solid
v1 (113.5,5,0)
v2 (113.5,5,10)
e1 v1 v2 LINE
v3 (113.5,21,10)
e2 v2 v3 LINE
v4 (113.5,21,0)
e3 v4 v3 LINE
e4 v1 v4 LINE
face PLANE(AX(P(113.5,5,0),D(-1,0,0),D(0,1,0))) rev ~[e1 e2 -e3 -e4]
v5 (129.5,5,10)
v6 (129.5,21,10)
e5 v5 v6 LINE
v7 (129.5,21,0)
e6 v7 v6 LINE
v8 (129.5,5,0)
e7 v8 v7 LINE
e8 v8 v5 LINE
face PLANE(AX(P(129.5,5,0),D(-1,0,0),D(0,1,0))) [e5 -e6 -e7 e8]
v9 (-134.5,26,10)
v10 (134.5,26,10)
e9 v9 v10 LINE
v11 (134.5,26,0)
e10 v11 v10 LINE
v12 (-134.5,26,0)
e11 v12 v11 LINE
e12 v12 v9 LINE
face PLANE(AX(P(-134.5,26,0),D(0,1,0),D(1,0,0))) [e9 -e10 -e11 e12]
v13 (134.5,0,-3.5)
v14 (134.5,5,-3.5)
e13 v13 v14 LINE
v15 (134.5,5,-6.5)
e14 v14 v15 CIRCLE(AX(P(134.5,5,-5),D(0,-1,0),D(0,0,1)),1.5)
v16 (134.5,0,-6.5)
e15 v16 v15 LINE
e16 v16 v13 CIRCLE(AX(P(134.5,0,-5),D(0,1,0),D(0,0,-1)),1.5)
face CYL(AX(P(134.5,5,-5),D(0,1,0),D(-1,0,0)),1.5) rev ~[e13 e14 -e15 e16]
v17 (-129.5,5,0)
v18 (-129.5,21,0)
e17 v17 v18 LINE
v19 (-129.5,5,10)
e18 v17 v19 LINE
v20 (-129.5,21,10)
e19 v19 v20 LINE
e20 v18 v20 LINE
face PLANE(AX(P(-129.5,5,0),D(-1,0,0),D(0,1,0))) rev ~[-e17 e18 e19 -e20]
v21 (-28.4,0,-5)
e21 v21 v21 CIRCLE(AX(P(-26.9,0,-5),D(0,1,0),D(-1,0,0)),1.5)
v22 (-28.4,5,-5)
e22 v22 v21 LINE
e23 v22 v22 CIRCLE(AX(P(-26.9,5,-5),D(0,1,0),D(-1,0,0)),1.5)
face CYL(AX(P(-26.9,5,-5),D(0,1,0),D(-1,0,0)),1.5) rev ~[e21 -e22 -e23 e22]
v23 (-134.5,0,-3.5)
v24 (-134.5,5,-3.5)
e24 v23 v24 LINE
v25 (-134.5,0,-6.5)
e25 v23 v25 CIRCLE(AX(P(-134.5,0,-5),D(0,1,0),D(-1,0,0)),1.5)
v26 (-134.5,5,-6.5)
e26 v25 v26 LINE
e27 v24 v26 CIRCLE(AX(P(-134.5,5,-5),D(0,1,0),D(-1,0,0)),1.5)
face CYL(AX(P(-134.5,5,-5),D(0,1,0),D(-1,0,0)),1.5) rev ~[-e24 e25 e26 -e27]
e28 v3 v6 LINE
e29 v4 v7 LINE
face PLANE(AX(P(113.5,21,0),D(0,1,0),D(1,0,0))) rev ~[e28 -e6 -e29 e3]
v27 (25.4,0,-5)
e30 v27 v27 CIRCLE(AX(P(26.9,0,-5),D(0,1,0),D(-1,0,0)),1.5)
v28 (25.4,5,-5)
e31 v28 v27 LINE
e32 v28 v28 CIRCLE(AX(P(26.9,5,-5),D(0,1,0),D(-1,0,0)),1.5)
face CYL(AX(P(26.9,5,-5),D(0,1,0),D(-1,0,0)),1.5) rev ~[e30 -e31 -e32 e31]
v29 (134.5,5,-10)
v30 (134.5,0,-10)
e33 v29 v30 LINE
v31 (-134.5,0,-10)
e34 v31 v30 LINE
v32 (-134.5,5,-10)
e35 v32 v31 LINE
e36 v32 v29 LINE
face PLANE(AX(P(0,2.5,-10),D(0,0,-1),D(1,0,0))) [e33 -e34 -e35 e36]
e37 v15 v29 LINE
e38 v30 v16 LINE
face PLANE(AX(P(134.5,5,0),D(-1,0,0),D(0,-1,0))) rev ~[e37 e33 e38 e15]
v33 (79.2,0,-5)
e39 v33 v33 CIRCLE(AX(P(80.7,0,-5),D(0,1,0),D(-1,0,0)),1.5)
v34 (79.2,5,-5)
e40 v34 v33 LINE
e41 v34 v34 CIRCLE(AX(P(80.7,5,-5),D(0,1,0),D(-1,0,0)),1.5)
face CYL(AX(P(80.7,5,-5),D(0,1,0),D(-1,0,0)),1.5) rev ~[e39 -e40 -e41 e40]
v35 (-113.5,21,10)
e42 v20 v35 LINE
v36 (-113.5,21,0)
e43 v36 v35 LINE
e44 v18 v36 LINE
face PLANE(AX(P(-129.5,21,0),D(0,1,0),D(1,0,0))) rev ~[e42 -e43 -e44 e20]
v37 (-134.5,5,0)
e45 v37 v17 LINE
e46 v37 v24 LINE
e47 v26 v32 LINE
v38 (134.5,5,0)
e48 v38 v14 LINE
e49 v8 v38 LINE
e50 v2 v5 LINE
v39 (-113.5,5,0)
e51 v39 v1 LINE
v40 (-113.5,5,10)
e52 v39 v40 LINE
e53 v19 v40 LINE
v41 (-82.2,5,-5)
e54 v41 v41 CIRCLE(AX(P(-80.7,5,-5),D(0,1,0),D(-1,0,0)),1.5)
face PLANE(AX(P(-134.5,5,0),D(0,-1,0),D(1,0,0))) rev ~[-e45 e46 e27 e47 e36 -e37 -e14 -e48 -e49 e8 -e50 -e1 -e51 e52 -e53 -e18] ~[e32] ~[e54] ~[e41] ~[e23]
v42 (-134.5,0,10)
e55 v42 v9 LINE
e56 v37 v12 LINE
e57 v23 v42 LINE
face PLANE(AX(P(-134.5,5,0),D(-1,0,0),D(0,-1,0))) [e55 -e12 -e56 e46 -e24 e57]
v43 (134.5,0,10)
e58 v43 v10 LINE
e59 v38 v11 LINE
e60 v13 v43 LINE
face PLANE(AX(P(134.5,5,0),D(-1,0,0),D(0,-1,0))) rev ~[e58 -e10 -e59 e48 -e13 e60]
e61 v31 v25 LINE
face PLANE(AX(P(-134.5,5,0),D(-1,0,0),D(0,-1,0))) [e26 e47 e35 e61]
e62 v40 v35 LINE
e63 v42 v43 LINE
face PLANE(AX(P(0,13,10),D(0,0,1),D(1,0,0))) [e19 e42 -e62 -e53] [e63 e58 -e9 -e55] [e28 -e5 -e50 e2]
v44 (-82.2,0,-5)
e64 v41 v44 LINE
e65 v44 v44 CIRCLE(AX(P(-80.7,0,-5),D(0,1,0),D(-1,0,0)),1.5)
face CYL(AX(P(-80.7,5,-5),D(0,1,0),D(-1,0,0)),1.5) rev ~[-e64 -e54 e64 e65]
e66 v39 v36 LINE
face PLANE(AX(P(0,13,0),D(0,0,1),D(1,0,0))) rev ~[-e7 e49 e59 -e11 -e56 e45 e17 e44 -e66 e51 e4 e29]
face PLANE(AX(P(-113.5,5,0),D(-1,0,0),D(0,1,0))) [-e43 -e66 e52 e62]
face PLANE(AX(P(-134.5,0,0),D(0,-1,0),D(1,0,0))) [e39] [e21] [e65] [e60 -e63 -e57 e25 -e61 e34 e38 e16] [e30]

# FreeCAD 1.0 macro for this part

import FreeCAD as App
import Part
import Sketcher

V = App.Vector
Q = App.Units.Quantity

doc = App.newDocument("Part")
body = doc.addObject("PartDesign::Body", "Body")

# Sketch on XY plane
sketch1 = doc.addObject("Sketcher::SketchObject", "Sketch")
body.addObject(sketch1)
sketch1.AttachmentSupport = (doc.XY_Plane, [""])
sketch1.MapMode = "FlatFace"
sketch1.addGeometry([
    Part.LineSegment(V(-134, 26, 0), V(-134, 0, 0)),  # 0
    Part.LineSegment(V(-134, 0, 0), V(134, 0, 0)),  # 1
    Part.LineSegment(V(134, 0, 0), V(134, 26, 0)),  # 2
    Part.LineSegment(V(134, 26, 0), V(-134, 26, 0)),  # 3
    Part.LineSegment(V(-114, 5, 0), V(-130, 5, 0)),  # 4
    Part.LineSegment(V(-130, 5, 0), V(-130, 21, 0)),  # 5
    Part.LineSegment(V(-130, 21, 0), V(-114, 21, 0)),  # 6
    Part.LineSegment(V(-114, 21, 0), V(-114, 5, 0)),  # 7
    Part.LineSegment(V(130, 5, 0), V(114, 5, 0)),  # 8
    Part.LineSegment(V(114, 5, 0), V(114, 21, 0)),  # 9
    Part.LineSegment(V(114, 21, 0), V(130, 21, 0)),  # 10
    Part.LineSegment(V(130, 21, 0), V(130, 5, 0)),  # 11
], False)
sketch1.addConstraint([
    Sketcher.Constraint("Coincident", 0, 2, 1, 1),
    Sketcher.Constraint("Coincident", 1, 2, 2, 1),
    Sketcher.Constraint("Coincident", 2, 2, 3, 1),
    Sketcher.Constraint("Coincident", 3, 2, 0, 1),
    Sketcher.Constraint("Coincident", 4, 2, 5, 1),
    Sketcher.Constraint("Coincident", 5, 2, 6, 1),
    Sketcher.Constraint("Coincident", 6, 2, 7, 1),
    Sketcher.Constraint("Coincident", 7, 2, 4, 1),
    Sketcher.Constraint("Coincident", 8, 2, 9, 1),
    Sketcher.Constraint("Coincident", 9, 2, 10, 1),
    Sketcher.Constraint("Coincident", 10, 2, 11, 1),
    Sketcher.Constraint("Coincident", 11, 2, 8, 1),
    Sketcher.Constraint("Vertical", 0),
    Sketcher.Constraint("Horizontal", 1),
    Sketcher.Constraint("Vertical", 2),
    Sketcher.Constraint("Horizontal", 3),
    Sketcher.Constraint("Horizontal", 4),
    Sketcher.Constraint("Vertical", 5),
    Sketcher.Constraint("Horizontal", 6),
    Sketcher.Constraint("Vertical", 7),
    Sketcher.Constraint("Horizontal", 8),
    Sketcher.Constraint("Vertical", 9),
    Sketcher.Constraint("Horizontal", 10),
    Sketcher.Constraint("Vertical", 11),
    Sketcher.Constraint("Symmetric", 0, 2, 1, 2, -1, 1),
    Sketcher.Constraint("Symmetric", 7, 2, 8, 2, -2),
    Sketcher.Constraint("Symmetric", 5, 2, 10, 2, -2),
    Sketcher.Constraint("Equal", 10, 5),
    Sketcher.Constraint("DistanceX", 1, 1, 1, 2, Q("269 mm")),
    Sketcher.Constraint("DistanceX", 4, 2, 4, 1, Q("16 mm")),
    Sketcher.Constraint("DistanceY", 0, 2, 0, 1, Q("26 mm")),
    Sketcher.Constraint("DistanceY", -1, 1, 4, 2, Q("5 mm")),
    Sketcher.Constraint("DistanceX", 0, 2, 4, 2, Q("5 mm")),
])
pad1 = doc.addObject("PartDesign::Pad", "Pad")
body.addObject(pad1)
pad1.Profile = sketch1
pad1.Length = 10

# Sketch on XY plane
sketch2 = doc.addObject("Sketcher::SketchObject", "Sketch001")
body.addObject(sketch2)
sketch2.AttachmentSupport = (doc.XY_Plane, [""])
sketch2.MapMode = "FlatFace"
sketch2.addGeometry([
    Part.LineSegment(V(-134, 0, 0), V(-134, 5, 0)),
    Part.LineSegment(V(-134, 5, 0), V(134, 5, 0)),
    Part.LineSegment(V(134, 5, 0), V(134, 0, 0)),
    Part.LineSegment(V(134, 0, 0), V(-134, 0, 0)),
], False)
sketch2.addConstraint([
    Sketcher.Constraint("Coincident", 0, 2, 1, 1),
    Sketcher.Constraint("Coincident", 1, 2, 2, 1),
    Sketcher.Constraint("Coincident", 2, 2, 3, 1),
    Sketcher.Constraint("Coincident", 3, 2, 0, 1),
    Sketcher.Constraint("Vertical", 0),
    Sketcher.Constraint("Horizontal", 1),
    Sketcher.Constraint("Vertical", 2),
    Sketcher.Constraint("Horizontal", 3),
    Sketcher.Constraint("Symmetric", 2, 2, 3, 2, -1, 1),
    Sketcher.Constraint("DistanceX", 1, 1, 1, 2, Q("269 mm")),
    Sketcher.Constraint("DistanceY", 0, 1, 0, 2, Q("5 mm")),
])
pad2 = doc.addObject("PartDesign::Pad", "Pad001")
body.addObject(pad2)
pad2.Profile = sketch2
pad2.Length = 10
pad2.Reversed = True

# Sketch on XZ plane
sketch3 = doc.addObject("Sketcher::SketchObject", "Sketch002")
body.addObject(sketch3)
sketch3.AttachmentSupport = (doc.XZ_Plane, [""])
sketch3.MapMode = "FlatFace"
sketch3.AttachmentOffset = App.Placement(V(0, 0, -5), App.Rotation())
sketch3.addGeometry([
    Part.Circle(V(134.5, -5, 0), V(0, 0, 1), 1.5),  # 0
    Part.Circle(V(80.7, -5, 0), V(0, 0, 1), 1.5),  # 1
    Part.Circle(V(26.9, -5, 0), V(0, 0, 1), 1.5),  # 2
    Part.Circle(V(-26.9, -5, 0), V(0, 0, 1), 1.5),  # 3
    Part.Circle(V(-80.7, -5, 0), V(0, 0, 1), 1.5),  # 4
    Part.Circle(V(-134.5, -5, 0), V(0, 0, 1), 1.5),  # 5
], False)
sketch3.addConstraint([
    Sketcher.Constraint("Equal", 0, 1),
    Sketcher.Constraint("Equal", 1, 2),
    Sketcher.Constraint("Equal", 2, 3),
    Sketcher.Constraint("Equal", 3, 4),
    Sketcher.Constraint("Equal", 4, 5),
    Sketcher.Constraint("Symmetric", 2, 3, 3, 3, -2),
    Sketcher.Constraint("Symmetric", 1, 3, 4, 3, -2),
    Sketcher.Constraint("Symmetric", 0, 3, 5, 3, -2),
    Sketcher.Constraint("Horizontal", 0, 3, 1, 3),
    Sketcher.Constraint("Horizontal", 1, 3, 2, 3),
    Sketcher.Constraint("Diameter", 0, Q("3 mm")),
    Sketcher.Constraint("DistanceY", 0, 3, -1, 1, Q("5 mm")),
    Sketcher.Constraint("DistanceX", 5, 3, 0, 3, Q("269 mm")),
    Sketcher.Constraint("DistanceX", -1, 1, 1, 3, Q("80.7 mm")),
    Sketcher.Constraint("DistanceX", -1, 1, 2, 3, Q("26.9 mm")),
])
pocket1 = doc.addObject("PartDesign::Pocket", "Pocket")
body.addObject(pocket1)
pocket1.Profile = sketch3
pocket1.Type = "ThroughAll"
pocket1.Reversed = True

doc.recompute()
